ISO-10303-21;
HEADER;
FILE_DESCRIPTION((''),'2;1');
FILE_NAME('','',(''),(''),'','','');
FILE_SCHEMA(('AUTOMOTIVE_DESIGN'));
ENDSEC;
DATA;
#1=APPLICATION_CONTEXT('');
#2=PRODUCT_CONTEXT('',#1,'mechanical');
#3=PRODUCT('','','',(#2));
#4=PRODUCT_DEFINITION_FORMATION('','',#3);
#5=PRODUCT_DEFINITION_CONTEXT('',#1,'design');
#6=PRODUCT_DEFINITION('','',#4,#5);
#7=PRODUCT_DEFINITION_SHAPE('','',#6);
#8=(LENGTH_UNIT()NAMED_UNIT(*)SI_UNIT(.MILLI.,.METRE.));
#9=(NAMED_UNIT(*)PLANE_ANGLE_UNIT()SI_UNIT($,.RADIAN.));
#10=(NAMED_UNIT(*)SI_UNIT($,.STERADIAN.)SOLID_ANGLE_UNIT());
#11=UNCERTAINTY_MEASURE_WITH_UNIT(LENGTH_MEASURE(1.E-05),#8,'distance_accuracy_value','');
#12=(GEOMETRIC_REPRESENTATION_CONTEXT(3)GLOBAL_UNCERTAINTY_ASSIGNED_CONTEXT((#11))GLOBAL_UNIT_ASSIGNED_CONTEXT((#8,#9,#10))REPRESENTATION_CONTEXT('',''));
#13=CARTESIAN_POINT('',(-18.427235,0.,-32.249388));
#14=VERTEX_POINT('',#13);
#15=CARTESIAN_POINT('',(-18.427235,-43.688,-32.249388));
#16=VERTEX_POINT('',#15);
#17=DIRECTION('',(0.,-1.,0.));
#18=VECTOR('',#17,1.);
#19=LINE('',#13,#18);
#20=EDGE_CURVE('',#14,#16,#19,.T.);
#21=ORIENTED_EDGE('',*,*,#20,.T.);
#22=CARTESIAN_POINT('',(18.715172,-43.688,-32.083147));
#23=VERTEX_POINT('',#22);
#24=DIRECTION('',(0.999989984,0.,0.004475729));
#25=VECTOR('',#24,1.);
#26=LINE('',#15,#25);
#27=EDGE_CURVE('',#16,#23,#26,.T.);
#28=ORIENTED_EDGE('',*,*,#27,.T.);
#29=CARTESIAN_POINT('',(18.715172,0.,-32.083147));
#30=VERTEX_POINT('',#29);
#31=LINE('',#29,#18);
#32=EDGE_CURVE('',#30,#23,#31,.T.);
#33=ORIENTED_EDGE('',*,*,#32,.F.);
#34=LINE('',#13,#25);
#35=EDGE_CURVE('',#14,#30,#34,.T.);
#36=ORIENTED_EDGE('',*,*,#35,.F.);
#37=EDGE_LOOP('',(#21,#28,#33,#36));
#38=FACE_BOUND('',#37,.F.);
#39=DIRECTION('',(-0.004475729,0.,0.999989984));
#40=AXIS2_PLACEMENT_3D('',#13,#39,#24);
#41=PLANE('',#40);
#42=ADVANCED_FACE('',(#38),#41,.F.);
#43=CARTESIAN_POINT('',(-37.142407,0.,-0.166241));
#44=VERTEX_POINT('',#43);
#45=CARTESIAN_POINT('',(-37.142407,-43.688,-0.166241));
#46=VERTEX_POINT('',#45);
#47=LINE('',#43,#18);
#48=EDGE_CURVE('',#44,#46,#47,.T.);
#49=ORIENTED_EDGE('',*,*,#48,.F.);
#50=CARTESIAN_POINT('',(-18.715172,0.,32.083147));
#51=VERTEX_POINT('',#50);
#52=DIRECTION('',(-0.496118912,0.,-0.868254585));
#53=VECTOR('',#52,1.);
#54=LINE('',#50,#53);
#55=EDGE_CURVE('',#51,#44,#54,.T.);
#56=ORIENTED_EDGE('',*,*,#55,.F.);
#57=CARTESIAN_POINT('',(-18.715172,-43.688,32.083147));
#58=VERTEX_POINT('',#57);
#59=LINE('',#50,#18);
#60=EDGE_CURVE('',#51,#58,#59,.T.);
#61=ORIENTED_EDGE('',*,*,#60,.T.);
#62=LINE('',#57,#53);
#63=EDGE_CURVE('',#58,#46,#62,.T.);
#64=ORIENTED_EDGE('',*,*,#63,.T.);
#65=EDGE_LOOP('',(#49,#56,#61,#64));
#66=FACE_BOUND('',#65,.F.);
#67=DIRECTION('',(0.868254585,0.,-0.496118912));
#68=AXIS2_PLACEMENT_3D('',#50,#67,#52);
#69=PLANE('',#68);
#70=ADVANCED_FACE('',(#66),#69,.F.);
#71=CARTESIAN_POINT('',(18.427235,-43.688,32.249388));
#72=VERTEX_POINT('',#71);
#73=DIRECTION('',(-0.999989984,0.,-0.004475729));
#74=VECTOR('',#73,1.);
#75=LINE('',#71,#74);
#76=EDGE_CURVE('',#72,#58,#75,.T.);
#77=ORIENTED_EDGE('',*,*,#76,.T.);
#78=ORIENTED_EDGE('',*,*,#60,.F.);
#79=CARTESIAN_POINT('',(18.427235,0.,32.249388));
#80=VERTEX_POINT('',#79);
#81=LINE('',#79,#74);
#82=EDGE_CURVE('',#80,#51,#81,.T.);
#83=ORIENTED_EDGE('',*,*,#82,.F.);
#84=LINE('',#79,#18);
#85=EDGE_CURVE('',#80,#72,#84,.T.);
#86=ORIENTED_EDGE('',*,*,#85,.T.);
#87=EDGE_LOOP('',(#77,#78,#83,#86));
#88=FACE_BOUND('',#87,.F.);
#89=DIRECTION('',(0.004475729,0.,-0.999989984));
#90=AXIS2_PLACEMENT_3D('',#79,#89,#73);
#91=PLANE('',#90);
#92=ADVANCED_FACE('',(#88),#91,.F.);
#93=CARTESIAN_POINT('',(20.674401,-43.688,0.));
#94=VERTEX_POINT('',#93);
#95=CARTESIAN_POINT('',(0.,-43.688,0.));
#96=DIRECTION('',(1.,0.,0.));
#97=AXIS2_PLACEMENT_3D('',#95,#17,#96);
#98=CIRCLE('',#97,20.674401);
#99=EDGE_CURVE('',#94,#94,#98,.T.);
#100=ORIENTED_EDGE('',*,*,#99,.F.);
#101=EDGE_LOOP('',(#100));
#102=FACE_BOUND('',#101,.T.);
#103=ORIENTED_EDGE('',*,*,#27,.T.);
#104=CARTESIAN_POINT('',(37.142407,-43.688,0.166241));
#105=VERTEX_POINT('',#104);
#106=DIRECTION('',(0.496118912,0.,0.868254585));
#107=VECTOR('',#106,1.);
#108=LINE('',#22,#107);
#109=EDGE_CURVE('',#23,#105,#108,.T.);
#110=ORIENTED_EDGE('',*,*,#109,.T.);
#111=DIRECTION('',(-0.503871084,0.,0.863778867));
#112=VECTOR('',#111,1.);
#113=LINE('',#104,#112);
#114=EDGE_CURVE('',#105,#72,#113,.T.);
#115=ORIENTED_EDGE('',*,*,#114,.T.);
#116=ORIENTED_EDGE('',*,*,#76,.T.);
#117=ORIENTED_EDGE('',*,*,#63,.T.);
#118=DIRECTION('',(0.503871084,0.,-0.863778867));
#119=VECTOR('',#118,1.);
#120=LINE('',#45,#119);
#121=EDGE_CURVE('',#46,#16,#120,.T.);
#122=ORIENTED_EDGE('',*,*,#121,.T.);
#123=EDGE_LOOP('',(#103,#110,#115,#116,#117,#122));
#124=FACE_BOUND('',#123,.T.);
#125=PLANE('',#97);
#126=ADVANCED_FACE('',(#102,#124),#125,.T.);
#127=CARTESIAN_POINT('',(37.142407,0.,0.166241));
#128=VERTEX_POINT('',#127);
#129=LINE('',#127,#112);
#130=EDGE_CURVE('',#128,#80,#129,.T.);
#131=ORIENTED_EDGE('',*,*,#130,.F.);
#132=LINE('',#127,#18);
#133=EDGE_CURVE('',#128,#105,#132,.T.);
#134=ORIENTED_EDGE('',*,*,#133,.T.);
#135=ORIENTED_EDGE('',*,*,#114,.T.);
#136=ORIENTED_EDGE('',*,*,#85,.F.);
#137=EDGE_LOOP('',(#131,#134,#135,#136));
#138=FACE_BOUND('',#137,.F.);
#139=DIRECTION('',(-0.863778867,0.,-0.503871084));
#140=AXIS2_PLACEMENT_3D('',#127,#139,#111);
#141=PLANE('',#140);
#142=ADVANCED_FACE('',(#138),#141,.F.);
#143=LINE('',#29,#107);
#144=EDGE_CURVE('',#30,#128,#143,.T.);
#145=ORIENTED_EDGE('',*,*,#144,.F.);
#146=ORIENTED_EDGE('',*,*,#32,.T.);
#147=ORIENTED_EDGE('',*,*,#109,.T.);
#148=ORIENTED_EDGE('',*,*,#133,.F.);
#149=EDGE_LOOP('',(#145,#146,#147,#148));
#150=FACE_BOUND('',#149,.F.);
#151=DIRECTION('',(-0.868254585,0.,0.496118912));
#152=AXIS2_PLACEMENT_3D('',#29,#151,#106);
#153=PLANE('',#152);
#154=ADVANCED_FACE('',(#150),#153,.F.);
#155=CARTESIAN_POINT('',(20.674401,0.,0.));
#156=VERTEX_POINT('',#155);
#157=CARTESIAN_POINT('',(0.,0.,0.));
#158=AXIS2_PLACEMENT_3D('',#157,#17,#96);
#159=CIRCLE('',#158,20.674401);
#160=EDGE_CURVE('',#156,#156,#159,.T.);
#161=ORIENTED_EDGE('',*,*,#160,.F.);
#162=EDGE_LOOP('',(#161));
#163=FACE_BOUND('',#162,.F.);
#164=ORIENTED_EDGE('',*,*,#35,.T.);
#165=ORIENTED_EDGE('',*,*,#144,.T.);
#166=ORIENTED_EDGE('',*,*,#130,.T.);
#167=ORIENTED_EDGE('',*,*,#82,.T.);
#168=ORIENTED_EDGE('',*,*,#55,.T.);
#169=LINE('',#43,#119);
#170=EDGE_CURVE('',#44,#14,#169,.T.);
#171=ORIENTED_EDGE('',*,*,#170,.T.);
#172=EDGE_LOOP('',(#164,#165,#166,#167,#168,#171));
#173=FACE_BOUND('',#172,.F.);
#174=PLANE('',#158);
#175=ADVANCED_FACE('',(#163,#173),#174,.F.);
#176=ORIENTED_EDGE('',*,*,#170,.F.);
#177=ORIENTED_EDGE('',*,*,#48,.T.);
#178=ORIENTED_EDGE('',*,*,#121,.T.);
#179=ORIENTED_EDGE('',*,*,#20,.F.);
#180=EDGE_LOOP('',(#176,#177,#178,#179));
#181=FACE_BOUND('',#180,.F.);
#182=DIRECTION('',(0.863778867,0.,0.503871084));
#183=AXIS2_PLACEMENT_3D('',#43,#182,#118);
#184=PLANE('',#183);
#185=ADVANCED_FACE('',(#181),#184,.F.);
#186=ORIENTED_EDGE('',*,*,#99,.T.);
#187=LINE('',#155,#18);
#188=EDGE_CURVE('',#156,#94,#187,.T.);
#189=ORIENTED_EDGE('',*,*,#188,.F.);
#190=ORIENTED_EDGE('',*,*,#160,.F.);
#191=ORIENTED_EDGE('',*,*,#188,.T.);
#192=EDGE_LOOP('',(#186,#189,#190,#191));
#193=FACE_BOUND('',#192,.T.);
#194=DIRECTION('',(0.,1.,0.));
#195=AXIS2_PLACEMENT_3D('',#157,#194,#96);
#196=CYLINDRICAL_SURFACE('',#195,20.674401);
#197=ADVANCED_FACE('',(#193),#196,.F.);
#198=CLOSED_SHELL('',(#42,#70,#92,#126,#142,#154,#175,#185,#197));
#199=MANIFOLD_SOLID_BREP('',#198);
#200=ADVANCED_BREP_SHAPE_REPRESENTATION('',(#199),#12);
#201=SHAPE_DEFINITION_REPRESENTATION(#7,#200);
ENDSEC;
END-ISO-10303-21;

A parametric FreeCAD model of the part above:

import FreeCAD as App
import Part
import Sketcher
from FreeCAD import Vector
Q = App.Units.Quantity


def add_polygon(sketch, points):
    """Adds a closed chain of lines whose ends are joined by coincident constraints."""
    first, n = sketch.GeometryCount, len(points)
    for a, b in zip(points, points[1:] + points[:1]):
        sketch.addGeometry(Part.LineSegment(App.Vector(*a, 0), App.Vector(*b, 0)), False)
    for i in range(n):
        sketch.addConstraint(Sketcher.Constraint("Coincident", first + i, 2, first + (i + 1) % n, 1))

doc = App.newDocument("Part")
body = doc.addObject("PartDesign::Body", "Body")

sketch1 = doc.addObject("Sketcher::SketchObject", "Sketch")
body.addObject(sketch1)
sketch1.AttachmentSupport = (doc.XZ_Plane, [""])
sketch1.MapMode = "FlatFace"
add_polygon(sketch1, [(37, 0), (18, 32), (-19, 32), (-37, 0), (-18, -32), (19, -32)])
sketch1.addGeometry(Part.Circle(Vector(0, 0, 0), Vector(0, 0, 1), 21), False)
sketch1.addConstraint(Sketcher.Constraint("Coincident", 6, 3, -1, 1))
sketch1.addConstraint(Sketcher.Constraint("Symmetric", 0, 2, 3, 2, -1, 1))
sketch1.addConstraint(Sketcher.Constraint("Symmetric", 1, 2, 4, 2, -1, 1))
sketch1.addConstraint(Sketcher.Constraint("Symmetric", 2, 2, 5, 2, -1, 1))
sketch1.addConstraint(Sketcher.Constraint("Equal", 0, 1))
sketch1.addConstraint(Sketcher.Constraint("Equal", 1, 2))
sketch1.addConstraint(Sketcher.Constraint("Diameter", 6, 41.348802))
sketch1.addConstraint(Sketcher.Constraint("Distance", 0, 37.142778))
sketch1.addConstraint(Sketcher.Constraint("DistanceY", -1, 1, 0, 2, 32.249388))
sketch1.addConstraint(Sketcher.Constraint("DistanceX", 1, 2, -1, 1, 18.715172))
sketch1.addConstraint(Sketcher.Constraint("DistanceY", 2, 2, -1, 1, 0.166241))
pad1 = doc.addObject("PartDesign::Pad", "Pad")
body.addObject(pad1)
pad1.Profile = sketch1
pad1.Length = Q("1.72 in")

doc.recompute()
